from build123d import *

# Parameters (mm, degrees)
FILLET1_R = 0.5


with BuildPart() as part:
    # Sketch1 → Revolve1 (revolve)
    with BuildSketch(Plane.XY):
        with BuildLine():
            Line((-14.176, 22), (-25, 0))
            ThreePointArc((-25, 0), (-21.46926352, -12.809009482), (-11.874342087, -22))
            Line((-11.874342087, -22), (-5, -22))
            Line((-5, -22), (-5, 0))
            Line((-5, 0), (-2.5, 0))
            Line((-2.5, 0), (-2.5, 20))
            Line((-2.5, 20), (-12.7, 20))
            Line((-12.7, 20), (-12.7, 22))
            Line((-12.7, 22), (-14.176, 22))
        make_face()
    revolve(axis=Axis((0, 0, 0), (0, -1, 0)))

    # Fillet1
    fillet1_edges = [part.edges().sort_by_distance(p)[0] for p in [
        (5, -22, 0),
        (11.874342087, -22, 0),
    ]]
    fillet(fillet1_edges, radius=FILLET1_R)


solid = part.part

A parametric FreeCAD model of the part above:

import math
import FreeCAD as App
import Part
import Sketcher
Q = App.Units.Quantity


def edges_at(feature, points):
    """Names of the edges that pass closest to the given points."""
    edges = feature.Shape.Edges
    near = lambda p: min(range(len(edges)), key=lambda i: edges[i].distToShape(Part.Vertex(*p))[0])
    return sorted({f"Edge{near(p) + 1}" for p in points})

doc = App.newDocument("Part")
body = doc.addObject("PartDesign::Body", "Body")

# Sketch on XY plane
sketch1 = body.newObject("Sketcher::SketchObject", "Sketch")
sketch1.AttachmentSupport = (doc.getObject("XY_Plane"), [""])
sketch1.MapMode = "FlatFace"
sketch1.addGeometry([
    Part.LineSegment(App.Vector(-14.176, 22, 0), App.Vector(-25, 0, 0)),  # 0
    Part.ArcOfCircle(Part.Circle(App.Vector(0, 0, 0), App.Vector(0, 0, 1), 25), math.radians(180), math.radians(241.642363)),  # 1
    Part.LineSegment(App.Vector(-11.874342, -22, 0), App.Vector(-5, -22, 0)),  # 2
    Part.LineSegment(App.Vector(-5, -22, 0), App.Vector(-5, 0, 0)),  # 3
    Part.LineSegment(App.Vector(-5, 0, 0), App.Vector(-2.5, 0, 0)),  # 4
    Part.LineSegment(App.Vector(-2.5, 0, 0), App.Vector(-2.5, 20, 0)),  # 5
    Part.LineSegment(App.Vector(-2.5, 20, 0), App.Vector(-12.7, 20, 0)),  # 6
    Part.LineSegment(App.Vector(-12.7, 20, 0), App.Vector(-12.7, 22, 0)),  # 7
    Part.LineSegment(App.Vector(-12.7, 22, 0), App.Vector(-14.176, 22, 0)),  # 8
], False)
sketch1.addConstraint([
    Sketcher.Constraint("Coincident", 0, 2, 1, 1),
    Sketcher.Constraint("Coincident", 1, 2, 2, 1),
    Sketcher.Constraint("Coincident", 2, 2, 3, 1),
    Sketcher.Constraint("Coincident", 3, 2, 4, 1),
    Sketcher.Constraint("Coincident", 4, 2, 5, 1),
    Sketcher.Constraint("Coincident", 5, 2, 6, 1),
    Sketcher.Constraint("Coincident", 6, 2, 7, 1),
    Sketcher.Constraint("Coincident", 7, 2, 8, 1),
    Sketcher.Constraint("Coincident", 8, 2, 0, 1),
    Sketcher.Constraint("Horizontal", 2),
    Sketcher.Constraint("Vertical", 3),
    Sketcher.Constraint("Horizontal", 4),
    Sketcher.Constraint("Vertical", 5),
    Sketcher.Constraint("Horizontal", 6),
    Sketcher.Constraint("Vertical", 7),
    Sketcher.Constraint("Horizontal", 8),
    Sketcher.Constraint("Coincident", 1, 3, -1, 1),
    Sketcher.Constraint("PointOnObject", 0, 2, -1),
    Sketcher.Constraint("PointOnObject", 3, 2, -1),
    Sketcher.Constraint("Radius", 1, Q("25 mm")),
    Sketcher.Constraint("DistanceY", 3, 1, 3, 2, Q("22 mm")),
    Sketcher.Constraint("DistanceY", 5, 1, 5, 2, Q("20 mm")),
    Sketcher.Constraint("DistanceY", 7, 1, 7, 2, Q("2 mm")),
    Sketcher.Constraint("DistanceX", 4, 1, 4, 2, Q("2.5 mm")),
    Sketcher.Constraint("DistanceX", 6, 2, 6, 1, Q("10.2 mm")),
    Sketcher.Constraint("DistanceX", 2, 2, -1, 1, Q("5 mm")),
    Sketcher.Constraint("DistanceX", 8, 2, 8, 1, Q("1.476 mm")),
])
revolution = body.newObject("PartDesign::Revolution", "Revolution")
revolution.Profile = sketch1
revolution.ReferenceAxis = (sketch1, ["V_Axis"])
revolution.Angle = 360
doc.recompute()

fillet = body.newObject("PartDesign::Fillet", "Fillet")
fillet.Base = (revolution, edges_at(revolution, [(5, -22, 0), (11.874, -22, 0)]))
fillet.Radius = 0.5

doc.recompute()
